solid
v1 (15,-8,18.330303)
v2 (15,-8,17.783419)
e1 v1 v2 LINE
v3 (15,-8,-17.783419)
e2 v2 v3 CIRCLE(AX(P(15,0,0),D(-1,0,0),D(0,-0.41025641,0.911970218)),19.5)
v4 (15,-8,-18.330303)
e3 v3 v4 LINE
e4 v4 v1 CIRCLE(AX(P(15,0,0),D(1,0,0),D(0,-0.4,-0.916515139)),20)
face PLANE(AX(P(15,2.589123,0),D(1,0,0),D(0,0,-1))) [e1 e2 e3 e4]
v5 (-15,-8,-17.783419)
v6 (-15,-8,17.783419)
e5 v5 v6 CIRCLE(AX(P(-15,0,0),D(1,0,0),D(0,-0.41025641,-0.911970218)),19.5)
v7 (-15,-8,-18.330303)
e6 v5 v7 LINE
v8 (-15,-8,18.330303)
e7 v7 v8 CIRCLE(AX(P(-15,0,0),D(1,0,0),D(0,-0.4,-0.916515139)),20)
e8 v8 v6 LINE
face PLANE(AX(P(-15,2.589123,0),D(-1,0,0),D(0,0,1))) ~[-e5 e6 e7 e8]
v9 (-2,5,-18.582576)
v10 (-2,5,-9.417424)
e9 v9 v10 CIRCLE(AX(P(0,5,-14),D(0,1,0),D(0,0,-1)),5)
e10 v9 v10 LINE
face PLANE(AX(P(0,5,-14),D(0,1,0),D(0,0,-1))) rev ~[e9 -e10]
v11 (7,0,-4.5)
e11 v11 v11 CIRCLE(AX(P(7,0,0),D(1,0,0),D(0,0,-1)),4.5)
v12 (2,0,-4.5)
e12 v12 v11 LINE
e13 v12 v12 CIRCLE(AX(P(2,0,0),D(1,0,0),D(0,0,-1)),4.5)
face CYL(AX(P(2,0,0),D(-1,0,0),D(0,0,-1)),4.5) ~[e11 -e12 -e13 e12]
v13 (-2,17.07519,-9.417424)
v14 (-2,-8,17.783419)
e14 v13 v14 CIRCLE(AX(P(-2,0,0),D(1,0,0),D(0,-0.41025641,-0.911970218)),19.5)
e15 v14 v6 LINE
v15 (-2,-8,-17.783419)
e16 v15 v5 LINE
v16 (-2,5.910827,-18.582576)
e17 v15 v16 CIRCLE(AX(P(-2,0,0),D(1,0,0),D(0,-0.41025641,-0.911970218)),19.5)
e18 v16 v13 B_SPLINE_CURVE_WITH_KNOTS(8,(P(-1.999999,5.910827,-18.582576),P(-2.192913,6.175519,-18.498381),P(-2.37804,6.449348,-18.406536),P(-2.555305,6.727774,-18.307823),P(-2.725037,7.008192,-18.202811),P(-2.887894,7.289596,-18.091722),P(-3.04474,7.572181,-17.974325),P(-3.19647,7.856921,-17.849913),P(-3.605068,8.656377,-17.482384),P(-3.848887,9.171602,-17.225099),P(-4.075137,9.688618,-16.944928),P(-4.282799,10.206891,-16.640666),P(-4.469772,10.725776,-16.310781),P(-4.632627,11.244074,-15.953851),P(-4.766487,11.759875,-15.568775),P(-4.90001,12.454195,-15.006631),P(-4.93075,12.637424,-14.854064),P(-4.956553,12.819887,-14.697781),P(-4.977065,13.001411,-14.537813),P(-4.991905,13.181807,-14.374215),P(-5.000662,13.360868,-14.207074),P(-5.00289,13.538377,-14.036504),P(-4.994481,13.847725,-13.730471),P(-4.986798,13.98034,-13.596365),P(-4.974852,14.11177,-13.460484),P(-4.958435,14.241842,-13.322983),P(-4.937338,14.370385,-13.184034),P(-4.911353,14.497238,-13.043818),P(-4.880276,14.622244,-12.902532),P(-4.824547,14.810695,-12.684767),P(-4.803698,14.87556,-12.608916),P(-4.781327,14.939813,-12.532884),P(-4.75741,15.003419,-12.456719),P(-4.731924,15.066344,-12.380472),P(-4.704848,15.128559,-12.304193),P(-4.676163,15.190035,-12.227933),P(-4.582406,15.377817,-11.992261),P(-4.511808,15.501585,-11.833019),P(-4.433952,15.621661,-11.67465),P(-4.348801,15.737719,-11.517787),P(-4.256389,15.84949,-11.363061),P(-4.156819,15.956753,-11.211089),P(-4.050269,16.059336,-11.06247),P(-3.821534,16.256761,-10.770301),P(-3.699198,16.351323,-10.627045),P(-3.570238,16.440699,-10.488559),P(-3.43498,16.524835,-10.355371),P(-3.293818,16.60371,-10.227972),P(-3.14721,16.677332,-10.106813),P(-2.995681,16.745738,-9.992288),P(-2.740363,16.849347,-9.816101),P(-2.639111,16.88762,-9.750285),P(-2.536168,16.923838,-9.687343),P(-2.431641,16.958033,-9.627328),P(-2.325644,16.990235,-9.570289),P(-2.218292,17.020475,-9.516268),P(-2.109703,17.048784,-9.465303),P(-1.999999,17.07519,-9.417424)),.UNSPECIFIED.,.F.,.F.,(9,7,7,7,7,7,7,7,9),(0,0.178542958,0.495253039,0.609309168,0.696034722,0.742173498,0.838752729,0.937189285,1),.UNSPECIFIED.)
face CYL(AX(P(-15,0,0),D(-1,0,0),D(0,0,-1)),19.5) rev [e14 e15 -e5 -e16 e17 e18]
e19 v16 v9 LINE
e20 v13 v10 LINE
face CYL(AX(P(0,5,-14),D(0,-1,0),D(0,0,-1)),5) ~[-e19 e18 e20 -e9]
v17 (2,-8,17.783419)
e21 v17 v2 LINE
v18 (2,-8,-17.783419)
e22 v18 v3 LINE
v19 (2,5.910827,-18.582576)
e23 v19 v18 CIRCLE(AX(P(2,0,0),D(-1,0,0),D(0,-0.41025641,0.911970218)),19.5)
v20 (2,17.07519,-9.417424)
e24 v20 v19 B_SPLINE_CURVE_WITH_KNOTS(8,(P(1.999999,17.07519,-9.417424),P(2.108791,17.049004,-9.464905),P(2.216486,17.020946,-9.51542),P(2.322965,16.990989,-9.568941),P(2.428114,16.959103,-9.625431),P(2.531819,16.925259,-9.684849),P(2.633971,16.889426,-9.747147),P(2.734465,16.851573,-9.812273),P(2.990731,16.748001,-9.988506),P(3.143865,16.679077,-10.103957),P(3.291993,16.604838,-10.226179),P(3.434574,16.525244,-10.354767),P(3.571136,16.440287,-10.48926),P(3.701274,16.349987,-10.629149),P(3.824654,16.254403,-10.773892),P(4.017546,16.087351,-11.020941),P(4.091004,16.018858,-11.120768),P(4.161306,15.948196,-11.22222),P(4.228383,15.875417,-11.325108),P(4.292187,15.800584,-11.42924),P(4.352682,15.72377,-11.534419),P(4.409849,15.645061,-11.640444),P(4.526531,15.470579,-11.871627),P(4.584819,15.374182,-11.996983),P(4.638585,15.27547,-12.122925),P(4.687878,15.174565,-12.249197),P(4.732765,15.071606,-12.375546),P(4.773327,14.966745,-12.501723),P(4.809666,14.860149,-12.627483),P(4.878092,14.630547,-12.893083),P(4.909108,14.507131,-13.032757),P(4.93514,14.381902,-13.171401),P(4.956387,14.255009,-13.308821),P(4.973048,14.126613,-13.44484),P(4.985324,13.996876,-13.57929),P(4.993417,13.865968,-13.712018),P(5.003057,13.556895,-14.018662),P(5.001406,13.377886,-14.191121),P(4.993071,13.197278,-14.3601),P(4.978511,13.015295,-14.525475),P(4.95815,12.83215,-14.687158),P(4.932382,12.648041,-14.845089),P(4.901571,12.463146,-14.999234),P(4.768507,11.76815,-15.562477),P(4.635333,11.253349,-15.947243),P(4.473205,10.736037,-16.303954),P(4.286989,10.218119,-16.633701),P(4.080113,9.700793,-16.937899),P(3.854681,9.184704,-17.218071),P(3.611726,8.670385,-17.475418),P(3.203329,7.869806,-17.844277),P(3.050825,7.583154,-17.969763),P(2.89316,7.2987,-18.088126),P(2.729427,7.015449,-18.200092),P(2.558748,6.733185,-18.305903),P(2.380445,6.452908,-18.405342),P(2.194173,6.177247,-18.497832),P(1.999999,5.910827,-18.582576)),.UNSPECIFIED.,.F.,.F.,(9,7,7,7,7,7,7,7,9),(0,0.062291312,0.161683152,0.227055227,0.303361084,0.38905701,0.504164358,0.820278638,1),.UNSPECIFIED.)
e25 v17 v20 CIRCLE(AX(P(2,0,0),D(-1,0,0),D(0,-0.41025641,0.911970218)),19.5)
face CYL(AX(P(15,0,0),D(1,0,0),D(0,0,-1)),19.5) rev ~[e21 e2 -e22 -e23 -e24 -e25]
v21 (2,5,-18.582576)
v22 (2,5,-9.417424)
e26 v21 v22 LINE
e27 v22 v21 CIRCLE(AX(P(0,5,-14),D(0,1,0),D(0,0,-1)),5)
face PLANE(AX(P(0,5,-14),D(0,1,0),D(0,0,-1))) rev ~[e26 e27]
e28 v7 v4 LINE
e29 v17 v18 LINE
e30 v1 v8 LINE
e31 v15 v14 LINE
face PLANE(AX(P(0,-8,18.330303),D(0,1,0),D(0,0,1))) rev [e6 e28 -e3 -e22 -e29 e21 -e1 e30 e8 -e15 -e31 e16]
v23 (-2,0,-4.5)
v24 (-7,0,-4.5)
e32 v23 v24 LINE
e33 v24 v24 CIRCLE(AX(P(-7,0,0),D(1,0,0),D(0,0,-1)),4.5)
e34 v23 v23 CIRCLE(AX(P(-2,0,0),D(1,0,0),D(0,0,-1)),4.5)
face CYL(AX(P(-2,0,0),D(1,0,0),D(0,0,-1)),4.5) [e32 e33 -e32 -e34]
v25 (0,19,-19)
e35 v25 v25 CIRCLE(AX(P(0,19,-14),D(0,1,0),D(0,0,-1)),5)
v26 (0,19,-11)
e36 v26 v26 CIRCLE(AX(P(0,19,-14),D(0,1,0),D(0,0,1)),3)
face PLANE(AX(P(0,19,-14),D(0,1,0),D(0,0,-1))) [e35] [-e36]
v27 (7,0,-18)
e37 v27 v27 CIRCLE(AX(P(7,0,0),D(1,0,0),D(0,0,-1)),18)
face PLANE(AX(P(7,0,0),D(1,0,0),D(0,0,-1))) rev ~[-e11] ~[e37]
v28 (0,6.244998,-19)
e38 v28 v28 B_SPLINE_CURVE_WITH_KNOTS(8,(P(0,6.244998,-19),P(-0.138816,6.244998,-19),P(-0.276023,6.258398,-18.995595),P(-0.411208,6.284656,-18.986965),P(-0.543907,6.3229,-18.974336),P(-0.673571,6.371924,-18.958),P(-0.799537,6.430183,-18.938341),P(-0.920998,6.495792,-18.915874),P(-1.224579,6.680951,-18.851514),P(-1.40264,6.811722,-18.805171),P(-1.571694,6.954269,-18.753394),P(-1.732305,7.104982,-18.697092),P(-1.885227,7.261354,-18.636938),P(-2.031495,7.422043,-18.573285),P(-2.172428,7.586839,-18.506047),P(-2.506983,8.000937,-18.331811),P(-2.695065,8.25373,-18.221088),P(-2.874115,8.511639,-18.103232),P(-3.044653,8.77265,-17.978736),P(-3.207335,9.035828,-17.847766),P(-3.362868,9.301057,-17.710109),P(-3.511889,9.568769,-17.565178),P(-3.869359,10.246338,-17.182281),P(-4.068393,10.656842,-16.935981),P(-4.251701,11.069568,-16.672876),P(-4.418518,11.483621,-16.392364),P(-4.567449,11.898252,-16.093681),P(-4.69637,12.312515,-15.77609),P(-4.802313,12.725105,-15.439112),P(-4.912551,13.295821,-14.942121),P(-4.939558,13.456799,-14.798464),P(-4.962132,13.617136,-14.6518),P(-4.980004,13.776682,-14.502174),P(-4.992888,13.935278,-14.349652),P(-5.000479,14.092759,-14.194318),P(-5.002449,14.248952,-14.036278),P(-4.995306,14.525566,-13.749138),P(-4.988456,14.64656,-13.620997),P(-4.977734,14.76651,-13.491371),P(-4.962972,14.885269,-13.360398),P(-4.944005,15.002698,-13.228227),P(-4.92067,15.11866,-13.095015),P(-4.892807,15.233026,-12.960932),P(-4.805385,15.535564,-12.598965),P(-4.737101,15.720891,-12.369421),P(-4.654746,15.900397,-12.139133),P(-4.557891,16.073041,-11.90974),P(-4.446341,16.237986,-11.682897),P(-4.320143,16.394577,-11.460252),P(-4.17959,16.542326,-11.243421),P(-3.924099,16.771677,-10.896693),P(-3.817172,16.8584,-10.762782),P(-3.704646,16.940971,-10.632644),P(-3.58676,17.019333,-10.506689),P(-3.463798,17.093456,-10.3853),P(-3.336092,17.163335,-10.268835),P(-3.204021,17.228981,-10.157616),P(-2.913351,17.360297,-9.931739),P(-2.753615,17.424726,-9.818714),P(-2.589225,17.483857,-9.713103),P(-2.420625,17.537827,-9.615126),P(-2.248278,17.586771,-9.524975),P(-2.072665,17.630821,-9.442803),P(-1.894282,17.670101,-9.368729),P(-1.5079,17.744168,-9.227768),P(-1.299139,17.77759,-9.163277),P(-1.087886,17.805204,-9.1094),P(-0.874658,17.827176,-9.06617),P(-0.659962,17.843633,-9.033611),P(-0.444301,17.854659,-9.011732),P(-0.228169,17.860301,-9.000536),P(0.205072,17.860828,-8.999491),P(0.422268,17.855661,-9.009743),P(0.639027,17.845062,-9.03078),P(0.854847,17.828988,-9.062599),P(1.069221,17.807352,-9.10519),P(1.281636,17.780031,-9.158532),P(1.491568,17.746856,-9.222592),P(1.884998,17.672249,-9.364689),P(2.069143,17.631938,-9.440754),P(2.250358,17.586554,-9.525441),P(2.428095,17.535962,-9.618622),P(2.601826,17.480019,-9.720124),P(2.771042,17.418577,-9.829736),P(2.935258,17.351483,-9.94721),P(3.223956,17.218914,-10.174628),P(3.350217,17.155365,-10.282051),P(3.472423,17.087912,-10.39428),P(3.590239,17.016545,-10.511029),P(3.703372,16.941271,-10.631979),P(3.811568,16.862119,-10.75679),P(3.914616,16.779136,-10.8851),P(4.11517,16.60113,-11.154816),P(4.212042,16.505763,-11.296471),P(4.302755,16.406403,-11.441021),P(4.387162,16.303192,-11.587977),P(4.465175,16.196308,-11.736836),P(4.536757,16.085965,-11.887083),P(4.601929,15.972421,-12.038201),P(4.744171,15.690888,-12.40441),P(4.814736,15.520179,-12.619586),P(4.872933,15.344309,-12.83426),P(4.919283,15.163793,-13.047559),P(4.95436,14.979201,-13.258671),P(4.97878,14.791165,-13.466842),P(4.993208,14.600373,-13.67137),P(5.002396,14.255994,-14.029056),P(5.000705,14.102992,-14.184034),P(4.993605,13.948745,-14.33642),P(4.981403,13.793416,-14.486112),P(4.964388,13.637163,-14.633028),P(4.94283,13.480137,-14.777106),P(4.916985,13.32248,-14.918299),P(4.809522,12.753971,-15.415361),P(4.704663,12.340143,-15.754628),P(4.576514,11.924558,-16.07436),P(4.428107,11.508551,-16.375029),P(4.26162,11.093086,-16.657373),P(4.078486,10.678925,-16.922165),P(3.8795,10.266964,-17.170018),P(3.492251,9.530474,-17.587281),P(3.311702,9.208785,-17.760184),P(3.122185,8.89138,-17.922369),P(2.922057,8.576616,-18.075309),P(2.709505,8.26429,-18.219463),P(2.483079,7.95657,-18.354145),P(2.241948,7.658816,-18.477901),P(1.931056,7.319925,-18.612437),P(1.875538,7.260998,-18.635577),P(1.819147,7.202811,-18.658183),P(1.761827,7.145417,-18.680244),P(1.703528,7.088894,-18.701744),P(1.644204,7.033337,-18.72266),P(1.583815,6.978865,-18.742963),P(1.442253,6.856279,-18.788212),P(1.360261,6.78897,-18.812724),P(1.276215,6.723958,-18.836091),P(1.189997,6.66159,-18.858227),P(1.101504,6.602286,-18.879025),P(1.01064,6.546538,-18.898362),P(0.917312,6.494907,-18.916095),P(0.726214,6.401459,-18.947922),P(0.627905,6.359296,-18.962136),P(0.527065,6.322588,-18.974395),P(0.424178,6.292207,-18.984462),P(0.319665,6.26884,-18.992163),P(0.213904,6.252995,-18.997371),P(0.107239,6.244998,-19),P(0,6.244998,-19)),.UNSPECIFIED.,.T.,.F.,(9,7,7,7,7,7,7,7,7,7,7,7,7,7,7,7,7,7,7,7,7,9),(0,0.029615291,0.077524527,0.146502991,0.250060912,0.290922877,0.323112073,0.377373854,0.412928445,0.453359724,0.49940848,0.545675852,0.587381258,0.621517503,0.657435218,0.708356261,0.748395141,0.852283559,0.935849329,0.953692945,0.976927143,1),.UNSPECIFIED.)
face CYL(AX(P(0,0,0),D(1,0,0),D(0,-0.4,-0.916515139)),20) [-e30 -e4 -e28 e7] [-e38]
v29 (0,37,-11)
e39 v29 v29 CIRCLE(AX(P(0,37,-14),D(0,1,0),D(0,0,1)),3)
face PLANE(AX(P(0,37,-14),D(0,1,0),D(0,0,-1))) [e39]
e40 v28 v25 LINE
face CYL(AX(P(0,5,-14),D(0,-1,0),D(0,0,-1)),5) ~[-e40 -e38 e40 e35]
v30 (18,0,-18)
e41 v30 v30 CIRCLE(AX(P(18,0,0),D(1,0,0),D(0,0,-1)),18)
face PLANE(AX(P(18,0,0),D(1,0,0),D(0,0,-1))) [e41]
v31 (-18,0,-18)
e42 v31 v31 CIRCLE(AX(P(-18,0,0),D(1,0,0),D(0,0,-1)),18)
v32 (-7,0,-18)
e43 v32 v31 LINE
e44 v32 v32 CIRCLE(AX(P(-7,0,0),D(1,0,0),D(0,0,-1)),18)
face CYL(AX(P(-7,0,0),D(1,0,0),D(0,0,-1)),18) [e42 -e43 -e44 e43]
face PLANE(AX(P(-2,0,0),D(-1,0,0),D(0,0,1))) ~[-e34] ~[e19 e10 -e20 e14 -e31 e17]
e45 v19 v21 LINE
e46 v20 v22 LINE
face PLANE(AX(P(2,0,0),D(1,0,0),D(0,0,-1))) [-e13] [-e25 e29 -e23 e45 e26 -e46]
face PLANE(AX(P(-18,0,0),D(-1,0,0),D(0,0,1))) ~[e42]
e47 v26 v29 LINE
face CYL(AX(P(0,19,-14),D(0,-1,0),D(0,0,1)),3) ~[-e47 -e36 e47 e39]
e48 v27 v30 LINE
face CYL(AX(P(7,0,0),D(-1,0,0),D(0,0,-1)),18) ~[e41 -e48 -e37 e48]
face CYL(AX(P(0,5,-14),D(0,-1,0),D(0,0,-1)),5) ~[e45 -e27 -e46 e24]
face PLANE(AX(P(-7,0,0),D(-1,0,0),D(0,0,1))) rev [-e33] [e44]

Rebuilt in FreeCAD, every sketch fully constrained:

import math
import FreeCAD as App
import Part
import Sketcher

V = App.Vector

doc = App.newDocument("Part")
params = doc.addObject("Spreadsheet::Sheet", "Params")
for row, (alias, value) in enumerate([
    ("sketch1_radius", "20 mm"),
    ("pad1_length", "15 mm"),
    ("sketch2_diameter", "39 mm"),
    ("pocket1_length", "13 mm"),
    ("sketch3_diameter", "9 mm"),
    ("pad2_length", "5 mm"),
    ("sketch4_diameter", "36 mm"),
    ("pad3_length", "11 mm"),
    ("sketch5_diameter", "10 mm"),
    ("pad4_length", "32 mm"),
    ("sketch6_diameter", "10 mm"),
    ("sketch6_diameter2", "6 mm"),
    ("pocket2_length", "18 mm"),
], start=1):
    params.set(f"A{row}", alias)
    params.set(f"B{row}", "=" + value)
    params.setAlias(f"B{row}", alias)

body = doc.addObject("PartDesign::Body", "Body")

# Sketch on YZ plane
sketch1 = doc.addObject("Sketcher::SketchObject", "Sketch")
body.addObject(sketch1)
sketch1.AttachmentSupport = (doc.YZ_Plane, [""])
sketch1.MapMode = "FlatFace"
sketch1.addGeometry(Part.LineSegment(V(-8, 18.330303, 0), V(-8, -18.330303, 0)), False)
sketch1.addGeometry(Part.ArcOfCircle(Part.Circle(V(0, 0, 0), V(0, 0, 1), 20), math.radians(-113.578178), math.radians(113.578178)), False)
sketch1.addConstraint(Sketcher.Constraint("Coincident", 0, 1, 1, 2))
sketch1.addConstraint(Sketcher.Constraint("Coincident", 1, 1, 0, 2))
sketch1.addConstraint(Sketcher.Constraint("Vertical", 0))
sketch1.addConstraint(Sketcher.Constraint("Coincident", 1, 3, -1, 1))
sketch1.addConstraint(Sketcher.Constraint("Radius", 1, 20.0))
sketch1.addConstraint(Sketcher.Constraint("DistanceX", 0, 1, -1, 1, 8.0))
sketch1.setExpression("Constraints[4]", "Params.sketch1_radius")
pad1 = doc.addObject("PartDesign::Pad", "Pad")
body.addObject(pad1)
pad1.Profile = sketch1
pad1.setExpression("Length", "Params.pad1_length")

# Sketch on YZ plane
sketch2 = doc.addObject("Sketcher::SketchObject", "Sketch001")
body.addObject(sketch2)
sketch2.AttachmentSupport = (doc.YZ_Plane, [""])
sketch2.MapMode = "FlatFace"
sketch2.AttachmentOffset = App.Placement(V(0, 0, 15), App.Rotation())
sketch2.addGeometry(Part.Circle(V(0, 0, 0), V(0, 0, 1), 19.5), False)
sketch2.addConstraint(Sketcher.Constraint("Coincident", 0, 3, -1, 1))
sketch2.addConstraint(Sketcher.Constraint("Diameter", 0, 39.0))
sketch2.setExpression("Constraints[1]", "Params.sketch2_diameter")
pocket1 = doc.addObject("PartDesign::Pocket", "Pocket")
body.addObject(pocket1)
pocket1.Profile = sketch2
pocket1.setExpression("Length", "Params.pocket1_length")

# Sketch on YZ plane
sketch3 = doc.addObject("Sketcher::SketchObject", "Sketch002")
body.addObject(sketch3)
sketch3.AttachmentSupport = (doc.YZ_Plane, [""])
sketch3.MapMode = "FlatFace"
sketch3.AttachmentOffset = App.Placement(V(0, 0, 2), App.Rotation())
sketch3.addGeometry(Part.Circle(V(0, 0, 0), V(0, 0, 1), 4.5), False)
sketch3.addConstraint(Sketcher.Constraint("Coincident", 0, 3, -1, 1))
sketch3.addConstraint(Sketcher.Constraint("Diameter", 0, 9.0))
sketch3.setExpression("Constraints[1]", "Params.sketch3_diameter")
pad2 = doc.addObject("PartDesign::Pad", "Pad001")
body.addObject(pad2)
pad2.Profile = sketch3
pad2.setExpression("Length", "Params.pad2_length")

# Sketch on YZ plane
sketch4 = doc.addObject("Sketcher::SketchObject", "Sketch003")
body.addObject(sketch4)
sketch4.AttachmentSupport = (doc.YZ_Plane, [""])
sketch4.MapMode = "FlatFace"
sketch4.AttachmentOffset = App.Placement(V(0, 0, 7), App.Rotation())
sketch4.addGeometry(Part.Circle(V(0, 0, 0), V(0, 0, 1), 18), False)
sketch4.addConstraint(Sketcher.Constraint("Coincident", 0, 3, -1, 1))
sketch4.addConstraint(Sketcher.Constraint("Diameter", 0, 36.0))
sketch4.setExpression("Constraints[1]", "Params.sketch4_diameter")
pad3 = doc.addObject("PartDesign::Pad", "Pad002")
body.addObject(pad3)
pad3.Profile = sketch4
pad3.setExpression("Length", "Params.pad3_length")
doc.recompute()

mirrored = doc.addObject("PartDesign::Mirrored", "Mirrored")
body.addObject(mirrored)
mirrored.Originals = [pad1, pocket1, pad2, pad3]
mirrored.MirrorPlane = (doc.YZ_Plane, [""])
body.Tip = mirrored

# Sketch on XZ plane
sketch5 = doc.addObject("Sketcher::SketchObject", "Sketch004")
body.addObject(sketch5)
sketch5.AttachmentSupport = (doc.XZ_Plane, [""])
sketch5.MapMode = "FlatFace"
sketch5.AttachmentOffset = App.Placement(V(0, 0, -5), App.Rotation())
sketch5.addGeometry(Part.Circle(V(0, -14, 0), V(0, 0, 1), 5), False)
sketch5.addConstraint(Sketcher.Constraint("PointOnObject", 0, 3, -2))
sketch5.addConstraint(Sketcher.Constraint("Diameter", 0, 10.0))
sketch5.addConstraint(Sketcher.Constraint("DistanceY", 0, 3, -1, 1, 14.0))
sketch5.setExpression("Constraints[1]", "Params.sketch5_diameter")
pad4 = doc.addObject("PartDesign::Pad", "Pad003")
body.addObject(pad4)
pad4.Profile = sketch5
pad4.setExpression("Length", "Params.pad4_length")
pad4.Reversed = True

# Sketch on XZ plane
sketch6 = doc.addObject("Sketcher::SketchObject", "Sketch005")
body.addObject(sketch6)
sketch6.AttachmentSupport = (doc.XZ_Plane, [""])
sketch6.MapMode = "FlatFace"
sketch6.AttachmentOffset = App.Placement(V(0, 0, -19), App.Rotation())
sketch6.addGeometry(Part.Circle(V(0, -14, 0), V(0, 0, 1), 5), False)
sketch6.addGeometry(Part.Circle(V(0, -14, 0), V(0, 0, 1), 3), False)
sketch6.addConstraint(Sketcher.Constraint("Coincident", 1, 3, 0, 3))
sketch6.addConstraint(Sketcher.Constraint("PointOnObject", 0, 3, -2))
sketch6.addConstraint(Sketcher.Constraint("Diameter", 0, 10.0))
sketch6.addConstraint(Sketcher.Constraint("Diameter", 1, 6.0))
sketch6.addConstraint(Sketcher.Constraint("DistanceY", 0, 3, -1, 1, 14.0))
sketch6.setExpression("Constraints[2]", "Params.sketch6_diameter")
sketch6.setExpression("Constraints[3]", "Params.sketch6_diameter2")
pocket2 = doc.addObject("PartDesign::Pocket", "Pocket001")
body.addObject(pocket2)
pocket2.Profile = sketch6
pocket2.setExpression("Length", "Params.pocket2_length")

doc.recompute()
